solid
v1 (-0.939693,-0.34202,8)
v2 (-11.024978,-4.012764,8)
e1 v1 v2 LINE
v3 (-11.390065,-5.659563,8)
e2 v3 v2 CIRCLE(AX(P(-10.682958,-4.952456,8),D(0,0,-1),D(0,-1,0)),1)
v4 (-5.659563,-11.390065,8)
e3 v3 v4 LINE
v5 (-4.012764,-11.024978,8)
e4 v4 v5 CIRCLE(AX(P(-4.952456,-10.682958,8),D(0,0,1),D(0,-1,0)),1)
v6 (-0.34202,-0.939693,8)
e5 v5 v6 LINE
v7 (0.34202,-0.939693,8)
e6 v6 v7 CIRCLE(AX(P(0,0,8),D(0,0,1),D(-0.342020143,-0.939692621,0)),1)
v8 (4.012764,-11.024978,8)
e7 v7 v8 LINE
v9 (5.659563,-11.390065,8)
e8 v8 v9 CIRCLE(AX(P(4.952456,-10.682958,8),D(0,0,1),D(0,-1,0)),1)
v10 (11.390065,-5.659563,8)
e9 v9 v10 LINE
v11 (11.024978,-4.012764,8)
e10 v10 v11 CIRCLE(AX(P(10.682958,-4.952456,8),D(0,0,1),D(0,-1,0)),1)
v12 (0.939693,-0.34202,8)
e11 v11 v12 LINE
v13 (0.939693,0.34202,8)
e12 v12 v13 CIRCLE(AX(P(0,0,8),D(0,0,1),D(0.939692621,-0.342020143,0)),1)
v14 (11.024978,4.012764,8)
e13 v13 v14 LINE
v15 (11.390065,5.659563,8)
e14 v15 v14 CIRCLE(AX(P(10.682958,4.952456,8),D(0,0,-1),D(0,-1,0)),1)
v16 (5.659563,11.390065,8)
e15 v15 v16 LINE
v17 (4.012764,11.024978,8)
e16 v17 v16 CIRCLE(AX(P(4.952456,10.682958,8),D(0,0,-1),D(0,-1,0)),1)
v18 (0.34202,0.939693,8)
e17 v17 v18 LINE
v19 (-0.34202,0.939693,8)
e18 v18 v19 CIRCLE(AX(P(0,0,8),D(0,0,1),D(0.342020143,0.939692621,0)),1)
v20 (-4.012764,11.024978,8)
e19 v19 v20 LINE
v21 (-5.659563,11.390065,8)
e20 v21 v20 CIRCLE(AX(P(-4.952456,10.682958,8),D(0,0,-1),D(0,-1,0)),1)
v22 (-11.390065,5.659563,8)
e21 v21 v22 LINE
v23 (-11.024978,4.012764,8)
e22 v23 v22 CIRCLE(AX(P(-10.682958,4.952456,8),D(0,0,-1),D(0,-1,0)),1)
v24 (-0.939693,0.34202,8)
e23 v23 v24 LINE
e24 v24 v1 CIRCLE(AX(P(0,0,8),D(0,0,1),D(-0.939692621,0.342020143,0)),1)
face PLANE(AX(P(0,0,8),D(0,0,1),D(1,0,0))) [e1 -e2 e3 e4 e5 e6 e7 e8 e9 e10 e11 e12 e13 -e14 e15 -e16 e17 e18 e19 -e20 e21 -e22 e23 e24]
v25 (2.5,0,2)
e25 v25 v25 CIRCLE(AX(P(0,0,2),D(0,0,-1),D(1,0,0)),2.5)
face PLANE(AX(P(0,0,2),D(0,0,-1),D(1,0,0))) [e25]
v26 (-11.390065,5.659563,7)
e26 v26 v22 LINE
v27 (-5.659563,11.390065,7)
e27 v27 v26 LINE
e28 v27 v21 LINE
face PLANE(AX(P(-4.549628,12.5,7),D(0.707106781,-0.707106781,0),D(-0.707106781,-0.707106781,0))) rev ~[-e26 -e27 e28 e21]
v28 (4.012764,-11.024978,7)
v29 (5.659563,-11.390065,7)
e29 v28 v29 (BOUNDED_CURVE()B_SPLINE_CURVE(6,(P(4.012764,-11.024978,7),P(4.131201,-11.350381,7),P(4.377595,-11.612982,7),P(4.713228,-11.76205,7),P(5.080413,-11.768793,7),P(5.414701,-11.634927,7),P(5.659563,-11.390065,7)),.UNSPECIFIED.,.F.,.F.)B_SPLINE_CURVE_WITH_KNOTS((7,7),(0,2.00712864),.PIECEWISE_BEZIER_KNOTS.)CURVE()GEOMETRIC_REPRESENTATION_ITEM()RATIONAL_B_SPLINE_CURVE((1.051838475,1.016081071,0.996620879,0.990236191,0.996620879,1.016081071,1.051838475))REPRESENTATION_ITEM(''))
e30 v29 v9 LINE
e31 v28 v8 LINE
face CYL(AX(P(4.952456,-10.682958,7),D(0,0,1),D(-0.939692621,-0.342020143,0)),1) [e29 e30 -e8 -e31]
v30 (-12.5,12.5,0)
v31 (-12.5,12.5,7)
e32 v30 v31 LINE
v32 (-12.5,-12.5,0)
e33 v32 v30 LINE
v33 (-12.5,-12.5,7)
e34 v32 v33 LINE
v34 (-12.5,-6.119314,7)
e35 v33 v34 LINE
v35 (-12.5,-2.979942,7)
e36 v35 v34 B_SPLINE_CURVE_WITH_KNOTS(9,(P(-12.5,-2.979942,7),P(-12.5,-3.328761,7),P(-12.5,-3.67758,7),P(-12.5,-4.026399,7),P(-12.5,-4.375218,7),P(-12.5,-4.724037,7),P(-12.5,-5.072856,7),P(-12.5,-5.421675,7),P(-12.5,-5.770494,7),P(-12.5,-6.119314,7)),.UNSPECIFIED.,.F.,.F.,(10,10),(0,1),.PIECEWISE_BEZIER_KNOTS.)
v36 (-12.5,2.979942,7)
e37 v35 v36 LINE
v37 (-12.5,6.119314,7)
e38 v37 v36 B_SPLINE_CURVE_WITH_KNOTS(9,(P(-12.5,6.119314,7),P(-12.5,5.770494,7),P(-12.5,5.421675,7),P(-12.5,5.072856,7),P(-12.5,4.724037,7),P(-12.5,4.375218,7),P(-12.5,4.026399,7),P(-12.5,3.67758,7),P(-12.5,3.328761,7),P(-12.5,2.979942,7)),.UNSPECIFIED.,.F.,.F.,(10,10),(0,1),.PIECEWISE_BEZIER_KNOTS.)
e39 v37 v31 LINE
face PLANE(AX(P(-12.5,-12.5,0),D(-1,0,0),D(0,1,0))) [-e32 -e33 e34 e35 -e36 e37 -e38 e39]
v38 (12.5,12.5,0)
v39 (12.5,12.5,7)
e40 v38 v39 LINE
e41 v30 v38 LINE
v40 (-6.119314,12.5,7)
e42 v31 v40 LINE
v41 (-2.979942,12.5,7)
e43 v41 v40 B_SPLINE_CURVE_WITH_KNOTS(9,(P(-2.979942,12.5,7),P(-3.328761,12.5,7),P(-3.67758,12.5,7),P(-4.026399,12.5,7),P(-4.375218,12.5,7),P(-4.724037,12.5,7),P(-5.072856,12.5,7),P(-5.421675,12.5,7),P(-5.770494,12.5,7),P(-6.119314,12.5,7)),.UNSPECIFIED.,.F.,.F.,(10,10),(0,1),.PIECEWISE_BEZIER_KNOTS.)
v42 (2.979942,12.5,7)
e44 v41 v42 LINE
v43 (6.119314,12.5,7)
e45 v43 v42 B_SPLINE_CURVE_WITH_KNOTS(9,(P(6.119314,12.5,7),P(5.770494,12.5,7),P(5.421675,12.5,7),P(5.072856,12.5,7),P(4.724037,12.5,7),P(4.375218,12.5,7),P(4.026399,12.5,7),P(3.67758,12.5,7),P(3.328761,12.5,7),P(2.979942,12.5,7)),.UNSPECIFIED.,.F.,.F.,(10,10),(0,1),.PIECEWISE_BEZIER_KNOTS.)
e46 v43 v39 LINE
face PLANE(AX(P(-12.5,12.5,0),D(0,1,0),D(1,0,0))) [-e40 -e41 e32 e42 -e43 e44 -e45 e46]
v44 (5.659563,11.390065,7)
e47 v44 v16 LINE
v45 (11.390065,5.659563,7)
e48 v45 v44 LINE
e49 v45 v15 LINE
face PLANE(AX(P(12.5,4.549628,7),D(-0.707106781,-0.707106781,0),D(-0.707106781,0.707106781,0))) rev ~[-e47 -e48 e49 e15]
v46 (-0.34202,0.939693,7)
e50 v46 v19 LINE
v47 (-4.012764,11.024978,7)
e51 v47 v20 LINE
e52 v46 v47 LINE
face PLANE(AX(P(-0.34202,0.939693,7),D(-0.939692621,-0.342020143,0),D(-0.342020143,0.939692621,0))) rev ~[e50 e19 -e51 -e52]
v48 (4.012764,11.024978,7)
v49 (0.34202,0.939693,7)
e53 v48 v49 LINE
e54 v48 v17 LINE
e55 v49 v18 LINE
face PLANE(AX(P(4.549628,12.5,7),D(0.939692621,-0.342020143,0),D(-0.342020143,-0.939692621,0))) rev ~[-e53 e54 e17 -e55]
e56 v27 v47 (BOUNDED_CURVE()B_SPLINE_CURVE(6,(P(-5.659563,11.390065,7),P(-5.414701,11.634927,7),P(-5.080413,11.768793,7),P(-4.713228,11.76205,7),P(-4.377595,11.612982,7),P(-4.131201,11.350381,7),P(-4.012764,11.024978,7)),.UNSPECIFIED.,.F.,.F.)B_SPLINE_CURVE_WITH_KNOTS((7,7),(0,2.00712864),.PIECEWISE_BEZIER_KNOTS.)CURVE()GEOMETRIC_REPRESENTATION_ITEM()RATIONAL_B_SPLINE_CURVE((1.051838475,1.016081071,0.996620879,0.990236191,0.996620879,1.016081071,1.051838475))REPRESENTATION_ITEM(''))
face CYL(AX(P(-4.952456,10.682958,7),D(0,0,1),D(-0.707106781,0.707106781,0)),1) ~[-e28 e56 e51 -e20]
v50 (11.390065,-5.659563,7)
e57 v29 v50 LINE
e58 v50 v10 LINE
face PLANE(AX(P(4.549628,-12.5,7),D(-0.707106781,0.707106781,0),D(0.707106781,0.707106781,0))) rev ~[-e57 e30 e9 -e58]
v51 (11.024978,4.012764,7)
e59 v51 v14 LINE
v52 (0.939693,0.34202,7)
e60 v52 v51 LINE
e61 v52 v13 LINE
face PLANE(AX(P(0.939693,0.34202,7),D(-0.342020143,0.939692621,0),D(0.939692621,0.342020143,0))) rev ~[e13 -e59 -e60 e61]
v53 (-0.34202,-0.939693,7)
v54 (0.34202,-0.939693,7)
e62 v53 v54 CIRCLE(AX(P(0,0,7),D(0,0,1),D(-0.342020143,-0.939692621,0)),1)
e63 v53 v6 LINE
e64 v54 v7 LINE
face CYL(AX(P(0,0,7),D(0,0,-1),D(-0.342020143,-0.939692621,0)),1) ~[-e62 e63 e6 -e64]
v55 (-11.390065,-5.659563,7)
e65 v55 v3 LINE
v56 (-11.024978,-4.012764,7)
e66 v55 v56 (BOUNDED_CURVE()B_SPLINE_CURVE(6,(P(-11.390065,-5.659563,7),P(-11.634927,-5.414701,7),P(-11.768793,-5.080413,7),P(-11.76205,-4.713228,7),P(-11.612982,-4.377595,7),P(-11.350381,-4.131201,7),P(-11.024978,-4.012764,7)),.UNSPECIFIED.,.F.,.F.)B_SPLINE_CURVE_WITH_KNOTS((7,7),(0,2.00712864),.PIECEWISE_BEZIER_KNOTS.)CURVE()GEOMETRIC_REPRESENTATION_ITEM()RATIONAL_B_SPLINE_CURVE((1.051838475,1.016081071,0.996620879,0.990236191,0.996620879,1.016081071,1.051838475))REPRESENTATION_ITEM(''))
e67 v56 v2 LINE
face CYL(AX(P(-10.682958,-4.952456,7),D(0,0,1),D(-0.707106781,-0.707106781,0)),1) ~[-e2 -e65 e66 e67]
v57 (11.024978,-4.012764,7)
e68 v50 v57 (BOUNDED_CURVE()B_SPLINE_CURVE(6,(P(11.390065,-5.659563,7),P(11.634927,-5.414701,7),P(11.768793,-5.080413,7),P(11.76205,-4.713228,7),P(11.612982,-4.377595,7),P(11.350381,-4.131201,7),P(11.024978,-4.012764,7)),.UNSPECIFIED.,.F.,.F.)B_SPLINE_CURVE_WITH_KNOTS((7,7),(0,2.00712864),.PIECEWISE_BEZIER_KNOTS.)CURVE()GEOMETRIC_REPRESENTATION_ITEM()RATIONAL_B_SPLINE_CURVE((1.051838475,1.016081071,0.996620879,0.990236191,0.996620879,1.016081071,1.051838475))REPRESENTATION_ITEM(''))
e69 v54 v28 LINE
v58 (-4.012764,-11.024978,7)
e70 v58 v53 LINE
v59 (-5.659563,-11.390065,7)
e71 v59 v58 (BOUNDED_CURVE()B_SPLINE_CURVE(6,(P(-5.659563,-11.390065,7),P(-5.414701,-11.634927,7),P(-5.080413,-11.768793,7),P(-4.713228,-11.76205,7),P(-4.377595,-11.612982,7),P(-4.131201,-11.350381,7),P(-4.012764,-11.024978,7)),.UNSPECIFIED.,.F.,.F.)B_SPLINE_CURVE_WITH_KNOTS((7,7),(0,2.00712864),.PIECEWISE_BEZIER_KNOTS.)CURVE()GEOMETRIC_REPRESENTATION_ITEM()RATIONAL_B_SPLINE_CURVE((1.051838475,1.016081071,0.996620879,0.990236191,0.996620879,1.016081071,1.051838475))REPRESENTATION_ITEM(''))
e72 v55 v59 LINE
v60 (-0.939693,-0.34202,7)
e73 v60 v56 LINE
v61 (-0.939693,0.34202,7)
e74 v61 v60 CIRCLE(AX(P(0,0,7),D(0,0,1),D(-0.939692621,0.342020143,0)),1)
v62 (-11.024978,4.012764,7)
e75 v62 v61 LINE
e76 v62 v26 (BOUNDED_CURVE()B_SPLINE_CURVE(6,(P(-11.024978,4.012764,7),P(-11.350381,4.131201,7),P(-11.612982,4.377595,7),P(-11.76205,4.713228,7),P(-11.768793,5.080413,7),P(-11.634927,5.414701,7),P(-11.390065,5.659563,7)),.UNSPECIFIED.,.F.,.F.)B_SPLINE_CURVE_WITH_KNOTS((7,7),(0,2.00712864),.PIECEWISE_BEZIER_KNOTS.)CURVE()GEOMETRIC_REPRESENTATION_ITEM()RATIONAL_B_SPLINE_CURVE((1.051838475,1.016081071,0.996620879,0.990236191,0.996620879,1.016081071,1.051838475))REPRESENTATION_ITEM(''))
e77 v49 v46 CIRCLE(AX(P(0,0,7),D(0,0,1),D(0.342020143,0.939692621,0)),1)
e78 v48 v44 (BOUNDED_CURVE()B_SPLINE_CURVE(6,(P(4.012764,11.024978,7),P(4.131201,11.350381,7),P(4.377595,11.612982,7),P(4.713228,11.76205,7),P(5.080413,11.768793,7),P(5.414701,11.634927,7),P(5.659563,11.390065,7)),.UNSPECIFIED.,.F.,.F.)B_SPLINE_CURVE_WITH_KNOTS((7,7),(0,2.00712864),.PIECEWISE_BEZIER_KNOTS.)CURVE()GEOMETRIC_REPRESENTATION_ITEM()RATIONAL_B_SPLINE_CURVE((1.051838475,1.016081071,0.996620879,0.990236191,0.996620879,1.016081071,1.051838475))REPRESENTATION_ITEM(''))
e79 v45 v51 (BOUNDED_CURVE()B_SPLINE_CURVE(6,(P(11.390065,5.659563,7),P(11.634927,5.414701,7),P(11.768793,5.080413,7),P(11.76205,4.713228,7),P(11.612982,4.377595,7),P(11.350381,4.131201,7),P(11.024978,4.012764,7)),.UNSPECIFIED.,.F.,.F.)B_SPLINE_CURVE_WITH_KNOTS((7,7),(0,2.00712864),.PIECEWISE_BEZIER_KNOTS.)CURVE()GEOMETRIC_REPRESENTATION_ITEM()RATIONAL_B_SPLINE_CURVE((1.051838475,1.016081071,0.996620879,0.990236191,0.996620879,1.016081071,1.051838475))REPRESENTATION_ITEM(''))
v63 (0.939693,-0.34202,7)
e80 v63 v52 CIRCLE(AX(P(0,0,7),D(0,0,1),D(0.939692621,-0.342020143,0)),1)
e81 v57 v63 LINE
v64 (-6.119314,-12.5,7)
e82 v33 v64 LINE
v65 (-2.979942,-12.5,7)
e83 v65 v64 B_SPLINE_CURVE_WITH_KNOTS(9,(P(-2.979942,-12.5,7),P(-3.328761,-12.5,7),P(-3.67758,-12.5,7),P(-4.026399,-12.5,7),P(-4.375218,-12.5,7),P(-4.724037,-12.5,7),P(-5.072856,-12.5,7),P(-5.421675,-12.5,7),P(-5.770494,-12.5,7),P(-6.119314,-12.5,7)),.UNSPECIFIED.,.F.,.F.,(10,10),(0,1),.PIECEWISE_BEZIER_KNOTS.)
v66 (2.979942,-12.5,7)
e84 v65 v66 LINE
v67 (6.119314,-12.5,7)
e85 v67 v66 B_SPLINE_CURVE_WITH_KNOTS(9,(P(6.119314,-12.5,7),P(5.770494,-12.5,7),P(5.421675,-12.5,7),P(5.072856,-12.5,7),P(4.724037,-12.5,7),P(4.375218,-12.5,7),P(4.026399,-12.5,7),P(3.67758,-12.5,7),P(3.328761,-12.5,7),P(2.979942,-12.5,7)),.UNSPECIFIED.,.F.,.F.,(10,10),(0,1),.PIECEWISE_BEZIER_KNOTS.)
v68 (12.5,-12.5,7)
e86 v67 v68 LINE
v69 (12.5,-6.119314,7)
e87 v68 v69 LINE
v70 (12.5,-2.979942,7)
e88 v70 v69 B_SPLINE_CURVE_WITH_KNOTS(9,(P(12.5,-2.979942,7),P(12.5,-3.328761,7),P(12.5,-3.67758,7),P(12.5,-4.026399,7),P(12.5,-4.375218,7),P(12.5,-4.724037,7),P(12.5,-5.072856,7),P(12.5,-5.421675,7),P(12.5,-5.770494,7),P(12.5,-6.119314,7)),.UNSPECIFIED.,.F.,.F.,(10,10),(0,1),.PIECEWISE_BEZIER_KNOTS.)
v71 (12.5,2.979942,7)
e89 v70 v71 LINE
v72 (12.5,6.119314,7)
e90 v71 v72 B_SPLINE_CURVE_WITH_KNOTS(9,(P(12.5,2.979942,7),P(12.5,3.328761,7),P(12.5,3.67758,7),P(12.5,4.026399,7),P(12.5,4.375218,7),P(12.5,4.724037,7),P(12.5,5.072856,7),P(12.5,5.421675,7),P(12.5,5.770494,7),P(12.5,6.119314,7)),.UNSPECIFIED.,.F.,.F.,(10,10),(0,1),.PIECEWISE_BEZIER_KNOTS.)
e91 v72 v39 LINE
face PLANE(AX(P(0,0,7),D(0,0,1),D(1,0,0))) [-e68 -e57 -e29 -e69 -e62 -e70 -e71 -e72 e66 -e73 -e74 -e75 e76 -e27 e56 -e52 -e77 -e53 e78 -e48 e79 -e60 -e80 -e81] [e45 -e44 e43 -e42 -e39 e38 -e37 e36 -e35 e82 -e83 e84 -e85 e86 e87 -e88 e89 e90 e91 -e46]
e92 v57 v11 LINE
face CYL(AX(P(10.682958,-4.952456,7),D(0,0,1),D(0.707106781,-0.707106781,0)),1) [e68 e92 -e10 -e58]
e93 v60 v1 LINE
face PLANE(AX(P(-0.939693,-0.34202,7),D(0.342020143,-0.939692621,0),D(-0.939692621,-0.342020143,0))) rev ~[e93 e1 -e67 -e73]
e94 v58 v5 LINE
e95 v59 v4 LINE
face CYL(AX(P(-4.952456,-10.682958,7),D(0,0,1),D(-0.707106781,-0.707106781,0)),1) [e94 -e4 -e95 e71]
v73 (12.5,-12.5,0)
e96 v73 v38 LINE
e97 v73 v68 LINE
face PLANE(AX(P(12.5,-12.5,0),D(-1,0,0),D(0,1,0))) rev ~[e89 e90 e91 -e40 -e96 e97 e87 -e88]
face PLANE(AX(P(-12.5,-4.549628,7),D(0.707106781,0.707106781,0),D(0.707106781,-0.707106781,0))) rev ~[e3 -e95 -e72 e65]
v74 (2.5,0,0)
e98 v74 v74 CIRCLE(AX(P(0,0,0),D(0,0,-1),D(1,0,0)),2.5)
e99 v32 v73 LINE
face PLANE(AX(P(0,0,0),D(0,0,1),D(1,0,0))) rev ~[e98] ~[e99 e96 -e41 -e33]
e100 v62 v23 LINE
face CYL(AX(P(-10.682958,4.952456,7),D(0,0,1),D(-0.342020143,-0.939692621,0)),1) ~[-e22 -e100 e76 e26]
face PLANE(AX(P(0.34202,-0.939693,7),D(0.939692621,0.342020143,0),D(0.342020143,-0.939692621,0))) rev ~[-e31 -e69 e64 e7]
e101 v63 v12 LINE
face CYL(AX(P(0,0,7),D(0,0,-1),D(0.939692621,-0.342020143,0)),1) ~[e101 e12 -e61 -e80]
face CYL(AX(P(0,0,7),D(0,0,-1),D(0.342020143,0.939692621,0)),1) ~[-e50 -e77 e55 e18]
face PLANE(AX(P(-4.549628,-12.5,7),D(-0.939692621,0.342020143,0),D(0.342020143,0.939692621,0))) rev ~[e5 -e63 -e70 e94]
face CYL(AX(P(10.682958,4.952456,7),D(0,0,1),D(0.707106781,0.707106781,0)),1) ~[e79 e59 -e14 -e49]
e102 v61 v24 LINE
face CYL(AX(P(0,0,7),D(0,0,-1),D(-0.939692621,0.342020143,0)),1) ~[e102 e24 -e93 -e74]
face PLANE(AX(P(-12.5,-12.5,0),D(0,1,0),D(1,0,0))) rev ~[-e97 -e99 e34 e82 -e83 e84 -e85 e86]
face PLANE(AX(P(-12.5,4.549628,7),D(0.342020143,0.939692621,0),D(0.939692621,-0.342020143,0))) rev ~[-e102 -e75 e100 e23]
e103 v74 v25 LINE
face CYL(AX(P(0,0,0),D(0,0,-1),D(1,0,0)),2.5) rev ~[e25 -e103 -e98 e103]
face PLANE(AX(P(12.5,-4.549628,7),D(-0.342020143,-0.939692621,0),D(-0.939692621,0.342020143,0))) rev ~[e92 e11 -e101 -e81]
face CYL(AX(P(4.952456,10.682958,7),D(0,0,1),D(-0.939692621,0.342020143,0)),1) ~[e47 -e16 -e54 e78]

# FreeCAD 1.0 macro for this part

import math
import FreeCAD as App
import Part
import Sketcher

V = App.Vector
Q = App.Units.Quantity


def edges_at(feature, points):
    """Names of the edges that pass closest to the given points."""
    edges = feature.Shape.Edges
    near = lambda p: min(range(len(edges)), key=lambda i: edges[i].distToShape(Part.Vertex(*p))[0])
    return sorted({f"Edge{near(p) + 1}" for p in points})


def add_polygon(sketch, points):
    """Adds a closed chain of lines whose ends are joined by coincident constraints."""
    first, n = sketch.GeometryCount, len(points)
    for a, b in zip(points, points[1:] + points[:1]):
        sketch.addGeometry(Part.LineSegment(App.Vector(*a, 0), App.Vector(*b, 0)), False)
    for i in range(n):
        sketch.addConstraint(Sketcher.Constraint("Coincident", first + i, 2, first + (i + 1) % n, 1))

doc = App.newDocument("Part")
body = doc.addObject("PartDesign::Body", "Body")

sketch1 = body.newObject("Sketcher::SketchObject", "Sketch")
sketch1.AttachmentSupport = (doc.getObject("XY_Plane"), [""])
sketch1.MapMode = "FlatFace"
add_polygon(sketch1, [(-12, 12), (-12, -12), (12, -12), (12, 12)])
sketch1.addConstraint([
    Sketcher.Constraint("Vertical", 0),
    Sketcher.Constraint("Horizontal", 1),
    Sketcher.Constraint("Vertical", 2),
    Sketcher.Constraint("Horizontal", 3),
    Sketcher.Constraint("Symmetric", 0, 2, 2, 2, -1, 1),
    Sketcher.Constraint("Equal", 3, 0),
    Sketcher.Constraint("DistanceX", 1, 1, 1, 2, Q("25 mm")),
])
pad1 = body.newObject("PartDesign::Pad", "Pad")
pad1.Profile = sketch1
pad1.Length = 7

sketch2 = body.newObject("Sketcher::SketchObject", "Sketch001")
sketch2.AttachmentSupport = (doc.getObject("XY_Plane"), [""])
sketch2.MapMode = "FlatFace"
sketch2.addGeometry(Part.Circle(V(0, 0, 0), V(0, 0, 1), 2.5), False)
sketch2.addConstraint([
    Sketcher.Constraint("Coincident", 0, 3, -1, 1),
    Sketcher.Constraint("Diameter", 0, Q("5 mm")),
])
pocket1 = body.newObject("PartDesign::Pocket", "Pocket")
pocket1.Profile = sketch2
pocket1.Length = 2
pocket1.Reversed = True

sketch3 = body.newObject("Sketcher::SketchObject", "Sketch002")
sketch3.AttachmentSupport = (doc.getObject("XY_Plane"), [""])
sketch3.MapMode = "FlatFace"
sketch3.AttachmentOffset = App.Placement(V(0, 0, 7), App.Rotation())
sketch3.addGeometry([
    Part.LineSegment(V(-12.5, 4.5, 0), V(-0.9, 0.3, 0)),
    Part.ArcOfCircle(Part.Circle(V(0, 0, 0), V(0, 0, 1), 1), math.radians(160), math.radians(200)),
    Part.LineSegment(V(-0.9, -0.3, 0), V(-12.5, -4.5, 0)),
    Part.LineSegment(V(-12.5, -4.5, 0), V(-4.5, -12.5, 0)),
    Part.LineSegment(V(-4.5, -12.5, 0), V(-0.3, -0.9, 0)),
    Part.ArcOfCircle(Part.Circle(V(0, 0, 0), V(0, 0, 1), 1), math.radians(-110), math.radians(-70)),
    Part.LineSegment(V(0.3, -0.9, 0), V(4.5, -12.5, 0)),
    Part.LineSegment(V(4.5, -12.5, 0), V(12.5, -4.5, 0)),
    Part.LineSegment(V(12.5, -4.5, 0), V(0.9, -0.3, 0)),
    Part.ArcOfCircle(Part.Circle(V(0, 0, 0), V(0, 0, 1), 1), math.radians(-20), math.radians(20)),
    Part.LineSegment(V(0.9, 0.3, 0), V(12.5, 4.5, 0)),
    Part.LineSegment(V(12.5, 4.5, 0), V(4.5, 12.5, 0)),
    Part.LineSegment(V(4.5, 12.5, 0), V(0.3, 0.9, 0)),
    Part.ArcOfCircle(Part.Circle(V(0, 0, 0), V(0, 0, 1), 1), math.radians(70), math.radians(110)),
    Part.LineSegment(V(-0.3, 0.9, 0), V(-4.5, 12.5, 0)),
    Part.LineSegment(V(-4.5, 12.5, 0), V(-12.5, 4.5, 0)),
], False)
sketch3.addConstraint([
    Sketcher.Constraint("Coincident", 0, 2, 1, 1),
    Sketcher.Constraint("Coincident", 1, 2, 2, 1),
    Sketcher.Constraint("Coincident", 2, 2, 3, 1),
    Sketcher.Constraint("Coincident", 3, 2, 4, 1),
    Sketcher.Constraint("Coincident", 4, 2, 5, 1),
    Sketcher.Constraint("Coincident", 5, 2, 6, 1),
    Sketcher.Constraint("Coincident", 6, 2, 7, 1),
    Sketcher.Constraint("Coincident", 7, 2, 8, 1),
    Sketcher.Constraint("Coincident", 8, 2, 9, 1),
    Sketcher.Constraint("Coincident", 9, 2, 10, 1),
    Sketcher.Constraint("Coincident", 10, 2, 11, 1),
    Sketcher.Constraint("Coincident", 11, 2, 12, 1),
    Sketcher.Constraint("Coincident", 12, 2, 13, 1),
    Sketcher.Constraint("Coincident", 13, 2, 14, 1),
    Sketcher.Constraint("Coincident", 14, 2, 15, 1),
    Sketcher.Constraint("Coincident", 15, 2, 0, 1),
    Sketcher.Constraint("Coincident", 1, 3, -1, 1),
    Sketcher.Constraint("Coincident", 5, 3, -1, 1),
    Sketcher.Constraint("Coincident", 9, 3, -1, 1),
    Sketcher.Constraint("Coincident", 13, 3, -1, 1),
    Sketcher.Constraint("Equal", 1, 5),
    Sketcher.Constraint("Equal", 5, 9),
    Sketcher.Constraint("Equal", 9, 13),
    Sketcher.Constraint("Symmetric", 2, 2, 10, 2, -1, 1),
    Sketcher.Constraint("Symmetric", 3, 2, 11, 2, -1, 1),
    Sketcher.Constraint("Symmetric", 6, 2, 14, 2, -1, 1),
    Sketcher.Constraint("Symmetric", 7, 2, 15, 2, -1, 1),
    Sketcher.Constraint("Symmetric", 3, 2, 6, 2, -2),
    Sketcher.Constraint("Symmetric", 2, 2, 7, 2, -2),
    Sketcher.Constraint("Perpendicular", 0, 4),
    Sketcher.Constraint("Perpendicular", 2, 6),
    Sketcher.Constraint("Perpendicular", 3, 7),
    Sketcher.Constraint("Perpendicular", 4, 8),
    Sketcher.Constraint("Perpendicular", 6, 10),
    Sketcher.Constraint("Perpendicular", 8, 12),
    Sketcher.Constraint("Perpendicular", 10, 14),
    Sketcher.Constraint("Horizontal", 4, 2, 5, 2),
    Sketcher.Constraint("Equal", 2, 4),
    Sketcher.Constraint("Radius", 1, Q("1 mm")),
    Sketcher.Constraint("Angle", 0, Q("-20 deg")),
    Sketcher.Constraint("DistanceX", 2, 2, -1, 1, Q("12.5 mm")),
    Sketcher.Constraint("DistanceY", -1, 1, 0, 2, Q("0.34202 mm")),
])
pad2 = body.newObject("PartDesign::Pad", "Pad001")
pad2.Profile = sketch3
pad2.Length = 1
doc.recompute()

fillet = body.newObject("PartDesign::Fillet", "Fillet")
fillet.Base = (pad2, edges_at(pad2, [
    (-12.5, 4.55, 7.5),
    (-4.55, 12.5, 7.5),
    (4.55, 12.5, 7.5),
    (12.5, 4.55, 7.5),
    (4.55, -12.5, 7.5),
    (12.5, -4.55, 7.5),
    (-4.55, -12.5, 7.5),
    (-12.5, -4.55, 7.5),
]))
fillet.Radius = 1

doc.recompute()
